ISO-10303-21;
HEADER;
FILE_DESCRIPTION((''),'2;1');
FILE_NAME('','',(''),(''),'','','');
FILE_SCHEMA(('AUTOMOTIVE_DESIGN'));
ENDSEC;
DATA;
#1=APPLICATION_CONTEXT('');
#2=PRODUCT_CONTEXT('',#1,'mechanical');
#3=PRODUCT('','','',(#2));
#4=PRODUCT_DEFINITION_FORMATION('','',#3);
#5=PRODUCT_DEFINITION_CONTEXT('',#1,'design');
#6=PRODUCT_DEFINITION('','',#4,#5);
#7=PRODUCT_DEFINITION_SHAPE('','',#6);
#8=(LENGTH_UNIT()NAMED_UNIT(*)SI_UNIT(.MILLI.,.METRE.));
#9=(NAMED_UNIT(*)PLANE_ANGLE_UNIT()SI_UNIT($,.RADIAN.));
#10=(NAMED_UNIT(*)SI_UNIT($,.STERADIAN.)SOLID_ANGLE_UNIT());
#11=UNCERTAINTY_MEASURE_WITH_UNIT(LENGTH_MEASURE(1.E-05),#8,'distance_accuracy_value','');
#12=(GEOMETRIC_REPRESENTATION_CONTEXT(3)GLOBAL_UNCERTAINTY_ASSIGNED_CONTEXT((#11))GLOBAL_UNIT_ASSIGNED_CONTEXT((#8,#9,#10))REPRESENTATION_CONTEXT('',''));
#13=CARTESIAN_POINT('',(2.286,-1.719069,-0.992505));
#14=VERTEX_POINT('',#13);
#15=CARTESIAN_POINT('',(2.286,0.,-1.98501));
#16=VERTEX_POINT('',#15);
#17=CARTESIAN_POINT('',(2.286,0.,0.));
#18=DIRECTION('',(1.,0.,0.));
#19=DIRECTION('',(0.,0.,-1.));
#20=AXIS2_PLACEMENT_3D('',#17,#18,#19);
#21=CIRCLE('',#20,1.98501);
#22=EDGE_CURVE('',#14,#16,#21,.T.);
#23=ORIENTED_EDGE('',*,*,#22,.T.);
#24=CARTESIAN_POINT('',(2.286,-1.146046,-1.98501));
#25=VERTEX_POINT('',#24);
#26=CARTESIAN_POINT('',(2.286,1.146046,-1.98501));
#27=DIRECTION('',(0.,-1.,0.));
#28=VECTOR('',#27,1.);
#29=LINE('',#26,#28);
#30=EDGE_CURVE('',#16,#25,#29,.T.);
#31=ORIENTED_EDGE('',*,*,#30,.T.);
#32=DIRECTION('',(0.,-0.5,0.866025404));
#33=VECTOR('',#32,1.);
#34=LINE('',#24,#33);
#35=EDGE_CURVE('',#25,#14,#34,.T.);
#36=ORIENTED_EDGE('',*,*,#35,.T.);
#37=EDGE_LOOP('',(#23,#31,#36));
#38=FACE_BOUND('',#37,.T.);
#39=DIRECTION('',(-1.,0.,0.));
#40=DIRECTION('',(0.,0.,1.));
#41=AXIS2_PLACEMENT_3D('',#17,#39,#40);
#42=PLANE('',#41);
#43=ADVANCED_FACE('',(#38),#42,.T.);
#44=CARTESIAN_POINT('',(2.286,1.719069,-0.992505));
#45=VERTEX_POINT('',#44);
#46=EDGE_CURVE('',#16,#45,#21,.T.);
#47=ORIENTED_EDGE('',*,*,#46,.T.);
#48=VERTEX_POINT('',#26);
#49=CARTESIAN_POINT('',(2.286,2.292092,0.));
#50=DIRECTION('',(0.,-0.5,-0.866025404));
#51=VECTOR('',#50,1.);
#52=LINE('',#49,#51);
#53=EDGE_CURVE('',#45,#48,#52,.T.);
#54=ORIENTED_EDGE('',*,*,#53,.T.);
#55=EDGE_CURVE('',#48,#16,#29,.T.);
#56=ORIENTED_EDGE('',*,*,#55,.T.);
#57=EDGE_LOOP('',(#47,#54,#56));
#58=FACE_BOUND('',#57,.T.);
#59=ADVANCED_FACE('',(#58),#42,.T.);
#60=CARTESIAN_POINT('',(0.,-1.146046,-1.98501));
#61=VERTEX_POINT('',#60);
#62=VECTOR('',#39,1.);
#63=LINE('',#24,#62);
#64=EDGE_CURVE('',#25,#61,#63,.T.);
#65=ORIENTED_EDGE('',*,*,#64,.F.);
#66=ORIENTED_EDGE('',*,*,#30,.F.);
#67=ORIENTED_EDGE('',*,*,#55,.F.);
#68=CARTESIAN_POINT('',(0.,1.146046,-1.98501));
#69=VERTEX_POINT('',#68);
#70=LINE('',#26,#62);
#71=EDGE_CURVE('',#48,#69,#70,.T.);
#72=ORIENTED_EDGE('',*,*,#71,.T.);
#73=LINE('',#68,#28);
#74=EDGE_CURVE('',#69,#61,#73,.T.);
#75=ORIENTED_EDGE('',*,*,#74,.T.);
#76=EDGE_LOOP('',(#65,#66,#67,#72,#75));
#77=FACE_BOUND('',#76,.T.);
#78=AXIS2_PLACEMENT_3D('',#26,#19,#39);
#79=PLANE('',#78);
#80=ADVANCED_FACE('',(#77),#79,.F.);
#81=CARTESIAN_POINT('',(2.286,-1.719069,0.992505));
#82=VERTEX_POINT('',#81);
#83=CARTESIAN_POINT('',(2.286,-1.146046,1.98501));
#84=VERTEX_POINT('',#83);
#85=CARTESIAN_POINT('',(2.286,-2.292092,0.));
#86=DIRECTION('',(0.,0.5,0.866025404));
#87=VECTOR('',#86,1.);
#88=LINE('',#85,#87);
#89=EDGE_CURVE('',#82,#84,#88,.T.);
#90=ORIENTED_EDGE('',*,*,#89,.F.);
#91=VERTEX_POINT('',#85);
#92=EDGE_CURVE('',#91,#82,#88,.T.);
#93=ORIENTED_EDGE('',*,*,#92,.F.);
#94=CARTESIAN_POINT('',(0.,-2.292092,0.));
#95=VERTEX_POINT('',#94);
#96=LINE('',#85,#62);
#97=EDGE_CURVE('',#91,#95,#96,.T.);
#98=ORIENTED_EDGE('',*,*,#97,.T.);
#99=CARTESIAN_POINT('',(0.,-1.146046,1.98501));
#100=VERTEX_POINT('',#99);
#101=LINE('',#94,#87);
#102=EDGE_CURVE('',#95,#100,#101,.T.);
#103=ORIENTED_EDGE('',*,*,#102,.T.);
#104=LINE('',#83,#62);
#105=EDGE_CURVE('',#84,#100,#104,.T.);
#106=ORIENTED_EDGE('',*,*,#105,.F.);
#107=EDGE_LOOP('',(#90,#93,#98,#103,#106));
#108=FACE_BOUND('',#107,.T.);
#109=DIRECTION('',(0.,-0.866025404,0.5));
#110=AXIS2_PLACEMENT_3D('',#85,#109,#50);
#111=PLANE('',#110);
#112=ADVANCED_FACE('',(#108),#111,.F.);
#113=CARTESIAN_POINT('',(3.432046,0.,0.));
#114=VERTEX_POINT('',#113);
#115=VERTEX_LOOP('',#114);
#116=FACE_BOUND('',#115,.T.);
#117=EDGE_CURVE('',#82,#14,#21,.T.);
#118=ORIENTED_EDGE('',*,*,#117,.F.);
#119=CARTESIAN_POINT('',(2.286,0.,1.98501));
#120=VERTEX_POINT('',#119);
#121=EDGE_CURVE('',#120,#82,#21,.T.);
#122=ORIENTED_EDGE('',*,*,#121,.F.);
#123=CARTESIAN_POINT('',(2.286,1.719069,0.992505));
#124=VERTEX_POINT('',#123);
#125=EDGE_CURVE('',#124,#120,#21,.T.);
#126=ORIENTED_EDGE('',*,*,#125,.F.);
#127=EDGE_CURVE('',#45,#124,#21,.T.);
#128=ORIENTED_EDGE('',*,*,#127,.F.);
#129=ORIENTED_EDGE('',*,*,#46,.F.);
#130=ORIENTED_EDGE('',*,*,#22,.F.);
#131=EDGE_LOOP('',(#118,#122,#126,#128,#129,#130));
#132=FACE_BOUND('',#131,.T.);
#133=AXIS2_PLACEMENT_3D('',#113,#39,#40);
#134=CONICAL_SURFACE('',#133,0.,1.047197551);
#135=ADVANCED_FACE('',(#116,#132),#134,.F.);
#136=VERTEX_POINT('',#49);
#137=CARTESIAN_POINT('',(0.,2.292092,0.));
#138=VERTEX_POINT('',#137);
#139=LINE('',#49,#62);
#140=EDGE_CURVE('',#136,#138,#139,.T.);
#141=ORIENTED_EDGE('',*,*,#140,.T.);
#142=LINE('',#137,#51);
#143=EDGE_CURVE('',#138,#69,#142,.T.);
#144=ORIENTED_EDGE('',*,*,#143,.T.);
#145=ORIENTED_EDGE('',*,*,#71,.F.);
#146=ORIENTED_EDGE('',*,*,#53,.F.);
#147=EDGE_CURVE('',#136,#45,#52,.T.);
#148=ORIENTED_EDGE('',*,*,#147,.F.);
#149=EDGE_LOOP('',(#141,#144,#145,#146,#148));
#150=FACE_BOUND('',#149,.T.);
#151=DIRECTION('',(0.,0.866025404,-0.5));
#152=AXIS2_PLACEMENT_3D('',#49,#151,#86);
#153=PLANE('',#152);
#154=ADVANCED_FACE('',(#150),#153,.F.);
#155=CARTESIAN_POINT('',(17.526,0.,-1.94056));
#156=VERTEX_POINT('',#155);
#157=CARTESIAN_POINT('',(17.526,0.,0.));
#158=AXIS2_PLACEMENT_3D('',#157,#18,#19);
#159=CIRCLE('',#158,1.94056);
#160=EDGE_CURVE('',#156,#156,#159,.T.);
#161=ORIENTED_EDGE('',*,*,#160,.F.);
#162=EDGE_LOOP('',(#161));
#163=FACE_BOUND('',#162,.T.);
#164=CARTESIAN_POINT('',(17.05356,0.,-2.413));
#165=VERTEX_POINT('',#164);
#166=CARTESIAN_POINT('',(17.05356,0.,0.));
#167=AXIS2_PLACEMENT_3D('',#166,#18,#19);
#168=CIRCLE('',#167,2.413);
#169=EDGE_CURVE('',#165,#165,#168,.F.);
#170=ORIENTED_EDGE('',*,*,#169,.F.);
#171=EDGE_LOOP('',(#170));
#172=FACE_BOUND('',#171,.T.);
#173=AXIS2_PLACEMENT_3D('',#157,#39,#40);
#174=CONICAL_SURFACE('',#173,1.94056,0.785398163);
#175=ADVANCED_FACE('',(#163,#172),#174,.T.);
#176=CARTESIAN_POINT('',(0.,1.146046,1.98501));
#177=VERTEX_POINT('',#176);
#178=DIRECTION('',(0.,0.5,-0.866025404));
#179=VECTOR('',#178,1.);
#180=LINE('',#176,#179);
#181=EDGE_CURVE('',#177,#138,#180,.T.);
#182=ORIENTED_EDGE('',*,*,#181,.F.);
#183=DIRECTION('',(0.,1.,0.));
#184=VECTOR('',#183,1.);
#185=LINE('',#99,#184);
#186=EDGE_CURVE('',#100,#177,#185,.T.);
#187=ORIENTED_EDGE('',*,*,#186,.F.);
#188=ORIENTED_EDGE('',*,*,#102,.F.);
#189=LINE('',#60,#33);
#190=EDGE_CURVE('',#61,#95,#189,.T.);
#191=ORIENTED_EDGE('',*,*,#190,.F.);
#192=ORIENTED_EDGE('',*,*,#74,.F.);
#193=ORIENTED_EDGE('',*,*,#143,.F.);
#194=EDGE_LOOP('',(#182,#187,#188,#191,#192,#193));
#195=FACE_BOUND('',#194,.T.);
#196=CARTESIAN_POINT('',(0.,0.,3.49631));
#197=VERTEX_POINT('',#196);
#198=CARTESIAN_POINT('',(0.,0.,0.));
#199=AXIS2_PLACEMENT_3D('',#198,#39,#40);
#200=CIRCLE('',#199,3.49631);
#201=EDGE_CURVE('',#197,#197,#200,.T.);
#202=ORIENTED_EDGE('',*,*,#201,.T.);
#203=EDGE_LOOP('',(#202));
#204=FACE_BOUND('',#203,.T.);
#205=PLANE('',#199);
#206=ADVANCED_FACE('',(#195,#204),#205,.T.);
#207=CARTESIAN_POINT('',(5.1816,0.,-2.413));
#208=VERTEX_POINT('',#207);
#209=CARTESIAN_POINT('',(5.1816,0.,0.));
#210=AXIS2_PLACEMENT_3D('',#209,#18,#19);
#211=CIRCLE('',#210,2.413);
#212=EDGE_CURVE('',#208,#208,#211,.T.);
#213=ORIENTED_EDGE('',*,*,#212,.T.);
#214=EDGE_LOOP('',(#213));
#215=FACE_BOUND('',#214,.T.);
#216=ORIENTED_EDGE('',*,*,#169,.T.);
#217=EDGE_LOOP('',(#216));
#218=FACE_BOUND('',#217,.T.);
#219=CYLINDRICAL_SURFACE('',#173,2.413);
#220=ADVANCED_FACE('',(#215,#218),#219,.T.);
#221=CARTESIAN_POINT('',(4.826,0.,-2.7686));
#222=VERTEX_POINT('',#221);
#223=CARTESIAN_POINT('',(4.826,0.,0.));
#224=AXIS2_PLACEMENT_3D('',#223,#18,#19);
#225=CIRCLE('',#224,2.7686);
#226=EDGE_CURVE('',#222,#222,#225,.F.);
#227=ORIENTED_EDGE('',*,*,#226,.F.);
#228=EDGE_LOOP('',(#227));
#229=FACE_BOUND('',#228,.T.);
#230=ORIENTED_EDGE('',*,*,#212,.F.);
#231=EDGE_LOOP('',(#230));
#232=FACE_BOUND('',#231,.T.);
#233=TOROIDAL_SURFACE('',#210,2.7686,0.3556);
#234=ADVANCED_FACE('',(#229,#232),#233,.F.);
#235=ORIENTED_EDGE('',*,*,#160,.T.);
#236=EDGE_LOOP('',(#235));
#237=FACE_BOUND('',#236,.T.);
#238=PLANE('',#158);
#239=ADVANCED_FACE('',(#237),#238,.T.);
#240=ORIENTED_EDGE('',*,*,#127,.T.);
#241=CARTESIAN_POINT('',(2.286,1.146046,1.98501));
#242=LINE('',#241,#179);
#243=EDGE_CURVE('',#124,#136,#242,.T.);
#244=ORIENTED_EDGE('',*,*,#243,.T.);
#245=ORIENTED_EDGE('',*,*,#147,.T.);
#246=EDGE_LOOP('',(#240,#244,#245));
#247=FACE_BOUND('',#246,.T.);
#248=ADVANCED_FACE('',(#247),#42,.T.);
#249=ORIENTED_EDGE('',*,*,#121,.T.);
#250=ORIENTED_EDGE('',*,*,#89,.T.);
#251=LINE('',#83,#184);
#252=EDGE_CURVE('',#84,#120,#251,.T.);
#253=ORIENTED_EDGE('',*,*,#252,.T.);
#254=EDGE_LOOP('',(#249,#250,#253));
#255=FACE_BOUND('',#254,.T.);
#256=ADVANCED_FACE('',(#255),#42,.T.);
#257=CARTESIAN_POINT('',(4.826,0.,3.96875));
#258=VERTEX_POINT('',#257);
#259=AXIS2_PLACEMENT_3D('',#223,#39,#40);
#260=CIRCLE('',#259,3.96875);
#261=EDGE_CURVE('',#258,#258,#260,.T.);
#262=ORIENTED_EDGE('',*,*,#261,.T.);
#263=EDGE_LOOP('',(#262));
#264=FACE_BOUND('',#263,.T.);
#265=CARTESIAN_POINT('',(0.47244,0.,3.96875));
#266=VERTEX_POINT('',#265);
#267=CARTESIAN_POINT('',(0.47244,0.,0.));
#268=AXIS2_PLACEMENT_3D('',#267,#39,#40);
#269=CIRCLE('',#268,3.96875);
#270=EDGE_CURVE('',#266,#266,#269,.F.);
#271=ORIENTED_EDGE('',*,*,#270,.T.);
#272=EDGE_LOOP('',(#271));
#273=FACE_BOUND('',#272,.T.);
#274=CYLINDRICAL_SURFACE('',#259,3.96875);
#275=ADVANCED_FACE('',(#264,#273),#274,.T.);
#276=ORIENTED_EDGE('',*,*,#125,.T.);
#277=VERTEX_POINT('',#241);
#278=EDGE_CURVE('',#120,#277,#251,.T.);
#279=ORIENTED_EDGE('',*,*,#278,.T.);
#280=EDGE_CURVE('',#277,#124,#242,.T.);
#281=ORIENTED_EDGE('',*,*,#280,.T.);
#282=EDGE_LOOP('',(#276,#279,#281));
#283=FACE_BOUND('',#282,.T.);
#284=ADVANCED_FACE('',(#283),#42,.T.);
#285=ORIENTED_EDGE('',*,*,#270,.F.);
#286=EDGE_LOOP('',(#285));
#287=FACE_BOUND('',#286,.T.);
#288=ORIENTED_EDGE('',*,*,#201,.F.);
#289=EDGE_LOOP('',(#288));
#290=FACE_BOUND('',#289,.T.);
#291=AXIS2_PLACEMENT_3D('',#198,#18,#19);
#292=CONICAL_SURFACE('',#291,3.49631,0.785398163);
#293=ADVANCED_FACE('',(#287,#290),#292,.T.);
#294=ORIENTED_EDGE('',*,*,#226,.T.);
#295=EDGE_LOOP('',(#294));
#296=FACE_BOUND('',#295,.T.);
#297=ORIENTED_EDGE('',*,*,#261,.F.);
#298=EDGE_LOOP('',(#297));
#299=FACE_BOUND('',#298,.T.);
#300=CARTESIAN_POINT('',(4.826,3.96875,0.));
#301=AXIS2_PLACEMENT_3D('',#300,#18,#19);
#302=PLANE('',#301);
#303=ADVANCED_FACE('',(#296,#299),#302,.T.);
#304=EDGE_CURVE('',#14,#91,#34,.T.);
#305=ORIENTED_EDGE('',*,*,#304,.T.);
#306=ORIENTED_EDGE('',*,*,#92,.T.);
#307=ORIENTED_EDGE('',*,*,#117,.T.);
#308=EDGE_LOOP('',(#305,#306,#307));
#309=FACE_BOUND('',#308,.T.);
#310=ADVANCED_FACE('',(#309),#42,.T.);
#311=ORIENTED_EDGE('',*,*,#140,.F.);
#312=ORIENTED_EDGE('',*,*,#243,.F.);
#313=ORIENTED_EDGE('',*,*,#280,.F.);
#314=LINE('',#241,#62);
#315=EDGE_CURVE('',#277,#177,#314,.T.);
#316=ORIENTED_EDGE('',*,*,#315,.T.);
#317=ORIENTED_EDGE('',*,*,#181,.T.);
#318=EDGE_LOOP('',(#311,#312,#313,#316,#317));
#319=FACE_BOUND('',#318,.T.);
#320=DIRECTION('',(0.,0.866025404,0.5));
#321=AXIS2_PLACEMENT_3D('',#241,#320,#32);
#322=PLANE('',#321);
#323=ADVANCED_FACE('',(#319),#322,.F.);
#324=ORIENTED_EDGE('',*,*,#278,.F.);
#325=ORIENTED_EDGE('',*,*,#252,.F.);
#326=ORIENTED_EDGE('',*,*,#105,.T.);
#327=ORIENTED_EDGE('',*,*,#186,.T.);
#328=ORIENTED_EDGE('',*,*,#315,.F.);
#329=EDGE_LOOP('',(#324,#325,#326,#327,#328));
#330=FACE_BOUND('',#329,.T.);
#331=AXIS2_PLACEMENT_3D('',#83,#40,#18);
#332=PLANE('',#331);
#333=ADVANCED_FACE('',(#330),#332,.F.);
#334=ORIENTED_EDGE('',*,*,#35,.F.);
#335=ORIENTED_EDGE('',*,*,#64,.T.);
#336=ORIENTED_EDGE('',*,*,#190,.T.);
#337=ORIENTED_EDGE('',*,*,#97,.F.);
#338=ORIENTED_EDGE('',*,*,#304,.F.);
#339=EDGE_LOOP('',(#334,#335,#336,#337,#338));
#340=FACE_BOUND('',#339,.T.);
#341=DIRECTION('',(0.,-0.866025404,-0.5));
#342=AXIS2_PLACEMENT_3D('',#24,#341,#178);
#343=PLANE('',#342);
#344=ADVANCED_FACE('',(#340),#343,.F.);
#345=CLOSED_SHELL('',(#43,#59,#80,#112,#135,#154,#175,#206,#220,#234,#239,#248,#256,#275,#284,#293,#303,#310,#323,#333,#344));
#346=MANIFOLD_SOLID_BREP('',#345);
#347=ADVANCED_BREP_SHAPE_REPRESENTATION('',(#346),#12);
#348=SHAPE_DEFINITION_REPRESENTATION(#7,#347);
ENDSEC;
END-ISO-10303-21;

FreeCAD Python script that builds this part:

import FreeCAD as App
import Part
import Sketcher
Q = App.Units.Quantity


def edges_at(feature, points):
    """Names of the edges that pass closest to the given points."""
    edges = feature.Shape.Edges
    near = lambda p: min(range(len(edges)), key=lambda i: edges[i].distToShape(Part.Vertex(*p))[0])
    return sorted({f"Edge{near(p) + 1}" for p in points})

doc = App.newDocument("Part")
body = doc.addObject("PartDesign::Body", "Body")

# Sketch on XY plane
sketch1 = body.newObject("Sketcher::SketchObject", "Sketch")
sketch1.AttachmentSupport = (doc.getObject("XY_Plane"), [""])
sketch1.MapMode = "FlatFace"
sketch1.addGeometry([
    Part.LineSegment(App.Vector(4.8, 4, 0), App.Vector(4.8, 0, 0)),
    Part.LineSegment(App.Vector(4.8, 0, 0), App.Vector(0, 0, 0)),
    Part.LineSegment(App.Vector(0, 0, 0), App.Vector(0, 4, 0)),
    Part.LineSegment(App.Vector(0, 4, 0), App.Vector(4.8, 4, 0)),
], False)
sketch1.addConstraint([
    Sketcher.Constraint("Coincident", 0, 2, 1, 1),
    Sketcher.Constraint("Coincident", 1, 2, 2, 1),
    Sketcher.Constraint("Coincident", 2, 2, 3, 1),
    Sketcher.Constraint("Coincident", 3, 2, 0, 1),
    Sketcher.Constraint("Vertical", 0),
    Sketcher.Constraint("Horizontal", 1),
    Sketcher.Constraint("Vertical", 2),
    Sketcher.Constraint("Horizontal", 3),
    Sketcher.Constraint("Coincident", 1, 2, -1, 1),
    Sketcher.Constraint("DistanceX", 1, 2, 1, 1, Q("0.19 in")),
    Sketcher.Constraint("DistanceY", 0, 2, 0, 1, Q("0.15625 in")),
])
revolution = body.newObject("PartDesign::Revolution", "Revolution")
revolution.Profile = sketch1
revolution.ReferenceAxis = (sketch1, ["H_Axis"])
revolution.Angle = 360

# Sketch on YZ plane
sketch2 = body.newObject("Sketcher::SketchObject", "Sketch001")
sketch2.AttachmentSupport = (doc.getObject("YZ_Plane"), [""])
sketch2.MapMode = "FlatFace"
sketch2.AttachmentOffset = App.Placement(App.Vector(0, 0, 0.19 * 25.4), App.Rotation())
sketch2.addGeometry(Part.Circle(App.Vector(0, 0, 0), App.Vector(0, 0, 1), 2.4), False)
sketch2.addConstraint([
    Sketcher.Constraint("Coincident", 0, 3, -1, 1),
    Sketcher.Constraint("Diameter", 0, Q("0.19 in")),
])
pad1 = body.newObject("PartDesign::Pad", "Pad")
pad1.Profile = sketch2
pad1.Length = Q("0.5 in")

# Sketch on YZ plane
sketch3 = body.newObject("Sketcher::SketchObject", "Sketch002")
sketch3.AttachmentSupport = (doc.getObject("YZ_Plane"), [""])
sketch3.MapMode = "FlatFace"
sketch3.addGeometry([
    Part.LineSegment(App.Vector(-2.3, 0, 0), App.Vector(-1.1, 2, 0)),  # 0
    Part.LineSegment(App.Vector(-1.1, 2, 0), App.Vector(1.1, 2, 0)),  # 1
    Part.LineSegment(App.Vector(1.1, 2, 0), App.Vector(2.3, 0, 0)),  # 2
    Part.LineSegment(App.Vector(2.3, 0, 0), App.Vector(1.1, -2, 0)),  # 3
    Part.LineSegment(App.Vector(1.1, -2, 0), App.Vector(-1.1, -2, 0)),  # 4
    Part.LineSegment(App.Vector(-1.1, -2, 0), App.Vector(-2.3, 0, 0)),  # 5
], False)
sketch3.addConstraint([
    Sketcher.Constraint("Coincident", 0, 2, 1, 1),
    Sketcher.Constraint("Coincident", 1, 2, 2, 1),
    Sketcher.Constraint("Coincident", 2, 2, 3, 1),
    Sketcher.Constraint("Coincident", 3, 2, 4, 1),
    Sketcher.Constraint("Coincident", 4, 2, 5, 1),
    Sketcher.Constraint("Coincident", 5, 2, 0, 1),
    Sketcher.Constraint("Horizontal", 1),
    Sketcher.Constraint("Horizontal", 4),
    Sketcher.Constraint("Symmetric", 0, 2, 3, 2, -1, 1),
    Sketcher.Constraint("Symmetric", 2, 2, 5, 2, -1, 1),
    Sketcher.Constraint("PointOnObject", 2, 2, -1),
    Sketcher.Constraint("Parallel", 2, 5),
    Sketcher.Constraint("Vertical", 1, 2, 3, 2),
    Sketcher.Constraint("Angle", 0, Q("60 deg")),
    Sketcher.Constraint("DistanceY", 3, 2, 1, 2, Q("0.1563 in")),
    Sketcher.Constraint("DistanceX", 1, 1, 1, 2, 2.292092),
])
pocket1 = body.newObject("PartDesign::Pocket", "Pocket")
pocket1.Profile = sketch3
pocket1.Length = Q("0.09 in")
pocket1.Reversed = True

# Sketch on XY plane
sketch4 = body.newObject("Sketcher::SketchObject", "Sketch003")
sketch4.AttachmentSupport = (doc.getObject("XY_Plane"), [""])
sketch4.MapMode = "FlatFace"
sketch4.addGeometry([
    Part.LineSegment(App.Vector(2.3, 2, 0), App.Vector(2.3, 0, 0)),
    Part.LineSegment(App.Vector(2.3, 0, 0), App.Vector(3.4, 0, 0)),
    Part.LineSegment(App.Vector(3.4, 0, 0), App.Vector(2.3, 2, 0)),
], False)
sketch4.addConstraint([
    Sketcher.Constraint("Coincident", 0, 2, 1, 1),
    Sketcher.Constraint("Coincident", 1, 2, 2, 1),
    Sketcher.Constraint("Coincident", 2, 2, 0, 1),
    Sketcher.Constraint("Vertical", 0),
    Sketcher.Constraint("Horizontal", 1),
    Sketcher.Constraint("PointOnObject", 0, 2, -1),
    Sketcher.Constraint("Angle", 2, Q("120 deg")),
    Sketcher.Constraint("DistanceX", -1, 1, 0, 2, Q("0.09 in")),
    Sketcher.Constraint("DistanceY", 0, 2, 0, 1, 1.98501),
])
groove = body.newObject("PartDesign::Groove", "Groove")
groove.Profile = sketch4
groove.ReferenceAxis = (sketch4, ["H_Axis"])
groove.Angle = 360
doc.recompute()

chamfer = body.newObject("PartDesign::Chamfer", "Chamfer")
chamfer.Base = (groove, edges_at(groove, [(0, 0, -3.969), (17.526, 0, 2.413)]))
chamfer.Size = Q("0.0186 in")
doc.recompute()

fillet = body.newObject("PartDesign::Fillet", "Fillet")
fillet.Base = (chamfer, edges_at(chamfer, [(4.826, 0, 2.413)]))
fillet.Radius = Q("0.014 in")

doc.recompute()
